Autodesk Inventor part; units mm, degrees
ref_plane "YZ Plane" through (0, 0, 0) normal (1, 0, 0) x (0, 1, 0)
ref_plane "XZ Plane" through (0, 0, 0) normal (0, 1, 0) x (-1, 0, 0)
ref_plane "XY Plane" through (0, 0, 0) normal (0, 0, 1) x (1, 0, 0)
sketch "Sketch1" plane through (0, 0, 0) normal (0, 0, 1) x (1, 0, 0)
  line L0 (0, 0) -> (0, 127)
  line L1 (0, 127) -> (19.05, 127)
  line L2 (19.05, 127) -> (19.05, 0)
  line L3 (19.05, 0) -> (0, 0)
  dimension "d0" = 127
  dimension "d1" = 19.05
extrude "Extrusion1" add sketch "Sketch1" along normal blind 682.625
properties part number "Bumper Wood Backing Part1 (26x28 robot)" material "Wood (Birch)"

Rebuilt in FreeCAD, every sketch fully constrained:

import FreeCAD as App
import Part
import Sketcher
from FreeCAD import Vector
Q = App.Units.Quantity

doc = App.newDocument("Part")
body = doc.addObject("PartDesign::Body", "Body")

# Sketch on XY plane
sketch1 = doc.addObject("Sketcher::SketchObject", "Sketch")
body.addObject(sketch1)
sketch1.AttachmentSupport = (doc.XY_Plane, [""])
sketch1.MapMode = "FlatFace"
sketch1.addGeometry(Part.LineSegment(Vector(0, 127, 0), Vector(0, 0, 0)), False)
sketch1.addGeometry(Part.LineSegment(Vector(0, 0, 0), Vector(19, 0, 0)), False)
sketch1.addGeometry(Part.LineSegment(Vector(19, 0, 0), Vector(19, 127, 0)), False)
sketch1.addGeometry(Part.LineSegment(Vector(19, 127, 0), Vector(0, 127, 0)), False)
sketch1.addConstraint(Sketcher.Constraint("Coincident", 0, 2, 1, 1))
sketch1.addConstraint(Sketcher.Constraint("Coincident", 1, 2, 2, 1))
sketch1.addConstraint(Sketcher.Constraint("Coincident", 2, 2, 3, 1))
sketch1.addConstraint(Sketcher.Constraint("Coincident", 3, 2, 0, 1))
sketch1.addConstraint(Sketcher.Constraint("Vertical", 0))
sketch1.addConstraint(Sketcher.Constraint("Horizontal", 1))
sketch1.addConstraint(Sketcher.Constraint("Vertical", 2))
sketch1.addConstraint(Sketcher.Constraint("Horizontal", 3))
sketch1.addConstraint(Sketcher.Constraint("Coincident", 0, 2, -1, 1))
sketch1.addConstraint(Sketcher.Constraint("DistanceY", 0, 2, 0, 1, Q("5 in")))
sketch1.addConstraint(Sketcher.Constraint("DistanceX", 1, 1, 1, 2, Q("0.75 in")))
pad1 = doc.addObject("PartDesign::Pad", "Pad")
body.addObject(pad1)
pad1.Profile = sketch1
pad1.Length = Q("26.875 in")

doc.recompute()
